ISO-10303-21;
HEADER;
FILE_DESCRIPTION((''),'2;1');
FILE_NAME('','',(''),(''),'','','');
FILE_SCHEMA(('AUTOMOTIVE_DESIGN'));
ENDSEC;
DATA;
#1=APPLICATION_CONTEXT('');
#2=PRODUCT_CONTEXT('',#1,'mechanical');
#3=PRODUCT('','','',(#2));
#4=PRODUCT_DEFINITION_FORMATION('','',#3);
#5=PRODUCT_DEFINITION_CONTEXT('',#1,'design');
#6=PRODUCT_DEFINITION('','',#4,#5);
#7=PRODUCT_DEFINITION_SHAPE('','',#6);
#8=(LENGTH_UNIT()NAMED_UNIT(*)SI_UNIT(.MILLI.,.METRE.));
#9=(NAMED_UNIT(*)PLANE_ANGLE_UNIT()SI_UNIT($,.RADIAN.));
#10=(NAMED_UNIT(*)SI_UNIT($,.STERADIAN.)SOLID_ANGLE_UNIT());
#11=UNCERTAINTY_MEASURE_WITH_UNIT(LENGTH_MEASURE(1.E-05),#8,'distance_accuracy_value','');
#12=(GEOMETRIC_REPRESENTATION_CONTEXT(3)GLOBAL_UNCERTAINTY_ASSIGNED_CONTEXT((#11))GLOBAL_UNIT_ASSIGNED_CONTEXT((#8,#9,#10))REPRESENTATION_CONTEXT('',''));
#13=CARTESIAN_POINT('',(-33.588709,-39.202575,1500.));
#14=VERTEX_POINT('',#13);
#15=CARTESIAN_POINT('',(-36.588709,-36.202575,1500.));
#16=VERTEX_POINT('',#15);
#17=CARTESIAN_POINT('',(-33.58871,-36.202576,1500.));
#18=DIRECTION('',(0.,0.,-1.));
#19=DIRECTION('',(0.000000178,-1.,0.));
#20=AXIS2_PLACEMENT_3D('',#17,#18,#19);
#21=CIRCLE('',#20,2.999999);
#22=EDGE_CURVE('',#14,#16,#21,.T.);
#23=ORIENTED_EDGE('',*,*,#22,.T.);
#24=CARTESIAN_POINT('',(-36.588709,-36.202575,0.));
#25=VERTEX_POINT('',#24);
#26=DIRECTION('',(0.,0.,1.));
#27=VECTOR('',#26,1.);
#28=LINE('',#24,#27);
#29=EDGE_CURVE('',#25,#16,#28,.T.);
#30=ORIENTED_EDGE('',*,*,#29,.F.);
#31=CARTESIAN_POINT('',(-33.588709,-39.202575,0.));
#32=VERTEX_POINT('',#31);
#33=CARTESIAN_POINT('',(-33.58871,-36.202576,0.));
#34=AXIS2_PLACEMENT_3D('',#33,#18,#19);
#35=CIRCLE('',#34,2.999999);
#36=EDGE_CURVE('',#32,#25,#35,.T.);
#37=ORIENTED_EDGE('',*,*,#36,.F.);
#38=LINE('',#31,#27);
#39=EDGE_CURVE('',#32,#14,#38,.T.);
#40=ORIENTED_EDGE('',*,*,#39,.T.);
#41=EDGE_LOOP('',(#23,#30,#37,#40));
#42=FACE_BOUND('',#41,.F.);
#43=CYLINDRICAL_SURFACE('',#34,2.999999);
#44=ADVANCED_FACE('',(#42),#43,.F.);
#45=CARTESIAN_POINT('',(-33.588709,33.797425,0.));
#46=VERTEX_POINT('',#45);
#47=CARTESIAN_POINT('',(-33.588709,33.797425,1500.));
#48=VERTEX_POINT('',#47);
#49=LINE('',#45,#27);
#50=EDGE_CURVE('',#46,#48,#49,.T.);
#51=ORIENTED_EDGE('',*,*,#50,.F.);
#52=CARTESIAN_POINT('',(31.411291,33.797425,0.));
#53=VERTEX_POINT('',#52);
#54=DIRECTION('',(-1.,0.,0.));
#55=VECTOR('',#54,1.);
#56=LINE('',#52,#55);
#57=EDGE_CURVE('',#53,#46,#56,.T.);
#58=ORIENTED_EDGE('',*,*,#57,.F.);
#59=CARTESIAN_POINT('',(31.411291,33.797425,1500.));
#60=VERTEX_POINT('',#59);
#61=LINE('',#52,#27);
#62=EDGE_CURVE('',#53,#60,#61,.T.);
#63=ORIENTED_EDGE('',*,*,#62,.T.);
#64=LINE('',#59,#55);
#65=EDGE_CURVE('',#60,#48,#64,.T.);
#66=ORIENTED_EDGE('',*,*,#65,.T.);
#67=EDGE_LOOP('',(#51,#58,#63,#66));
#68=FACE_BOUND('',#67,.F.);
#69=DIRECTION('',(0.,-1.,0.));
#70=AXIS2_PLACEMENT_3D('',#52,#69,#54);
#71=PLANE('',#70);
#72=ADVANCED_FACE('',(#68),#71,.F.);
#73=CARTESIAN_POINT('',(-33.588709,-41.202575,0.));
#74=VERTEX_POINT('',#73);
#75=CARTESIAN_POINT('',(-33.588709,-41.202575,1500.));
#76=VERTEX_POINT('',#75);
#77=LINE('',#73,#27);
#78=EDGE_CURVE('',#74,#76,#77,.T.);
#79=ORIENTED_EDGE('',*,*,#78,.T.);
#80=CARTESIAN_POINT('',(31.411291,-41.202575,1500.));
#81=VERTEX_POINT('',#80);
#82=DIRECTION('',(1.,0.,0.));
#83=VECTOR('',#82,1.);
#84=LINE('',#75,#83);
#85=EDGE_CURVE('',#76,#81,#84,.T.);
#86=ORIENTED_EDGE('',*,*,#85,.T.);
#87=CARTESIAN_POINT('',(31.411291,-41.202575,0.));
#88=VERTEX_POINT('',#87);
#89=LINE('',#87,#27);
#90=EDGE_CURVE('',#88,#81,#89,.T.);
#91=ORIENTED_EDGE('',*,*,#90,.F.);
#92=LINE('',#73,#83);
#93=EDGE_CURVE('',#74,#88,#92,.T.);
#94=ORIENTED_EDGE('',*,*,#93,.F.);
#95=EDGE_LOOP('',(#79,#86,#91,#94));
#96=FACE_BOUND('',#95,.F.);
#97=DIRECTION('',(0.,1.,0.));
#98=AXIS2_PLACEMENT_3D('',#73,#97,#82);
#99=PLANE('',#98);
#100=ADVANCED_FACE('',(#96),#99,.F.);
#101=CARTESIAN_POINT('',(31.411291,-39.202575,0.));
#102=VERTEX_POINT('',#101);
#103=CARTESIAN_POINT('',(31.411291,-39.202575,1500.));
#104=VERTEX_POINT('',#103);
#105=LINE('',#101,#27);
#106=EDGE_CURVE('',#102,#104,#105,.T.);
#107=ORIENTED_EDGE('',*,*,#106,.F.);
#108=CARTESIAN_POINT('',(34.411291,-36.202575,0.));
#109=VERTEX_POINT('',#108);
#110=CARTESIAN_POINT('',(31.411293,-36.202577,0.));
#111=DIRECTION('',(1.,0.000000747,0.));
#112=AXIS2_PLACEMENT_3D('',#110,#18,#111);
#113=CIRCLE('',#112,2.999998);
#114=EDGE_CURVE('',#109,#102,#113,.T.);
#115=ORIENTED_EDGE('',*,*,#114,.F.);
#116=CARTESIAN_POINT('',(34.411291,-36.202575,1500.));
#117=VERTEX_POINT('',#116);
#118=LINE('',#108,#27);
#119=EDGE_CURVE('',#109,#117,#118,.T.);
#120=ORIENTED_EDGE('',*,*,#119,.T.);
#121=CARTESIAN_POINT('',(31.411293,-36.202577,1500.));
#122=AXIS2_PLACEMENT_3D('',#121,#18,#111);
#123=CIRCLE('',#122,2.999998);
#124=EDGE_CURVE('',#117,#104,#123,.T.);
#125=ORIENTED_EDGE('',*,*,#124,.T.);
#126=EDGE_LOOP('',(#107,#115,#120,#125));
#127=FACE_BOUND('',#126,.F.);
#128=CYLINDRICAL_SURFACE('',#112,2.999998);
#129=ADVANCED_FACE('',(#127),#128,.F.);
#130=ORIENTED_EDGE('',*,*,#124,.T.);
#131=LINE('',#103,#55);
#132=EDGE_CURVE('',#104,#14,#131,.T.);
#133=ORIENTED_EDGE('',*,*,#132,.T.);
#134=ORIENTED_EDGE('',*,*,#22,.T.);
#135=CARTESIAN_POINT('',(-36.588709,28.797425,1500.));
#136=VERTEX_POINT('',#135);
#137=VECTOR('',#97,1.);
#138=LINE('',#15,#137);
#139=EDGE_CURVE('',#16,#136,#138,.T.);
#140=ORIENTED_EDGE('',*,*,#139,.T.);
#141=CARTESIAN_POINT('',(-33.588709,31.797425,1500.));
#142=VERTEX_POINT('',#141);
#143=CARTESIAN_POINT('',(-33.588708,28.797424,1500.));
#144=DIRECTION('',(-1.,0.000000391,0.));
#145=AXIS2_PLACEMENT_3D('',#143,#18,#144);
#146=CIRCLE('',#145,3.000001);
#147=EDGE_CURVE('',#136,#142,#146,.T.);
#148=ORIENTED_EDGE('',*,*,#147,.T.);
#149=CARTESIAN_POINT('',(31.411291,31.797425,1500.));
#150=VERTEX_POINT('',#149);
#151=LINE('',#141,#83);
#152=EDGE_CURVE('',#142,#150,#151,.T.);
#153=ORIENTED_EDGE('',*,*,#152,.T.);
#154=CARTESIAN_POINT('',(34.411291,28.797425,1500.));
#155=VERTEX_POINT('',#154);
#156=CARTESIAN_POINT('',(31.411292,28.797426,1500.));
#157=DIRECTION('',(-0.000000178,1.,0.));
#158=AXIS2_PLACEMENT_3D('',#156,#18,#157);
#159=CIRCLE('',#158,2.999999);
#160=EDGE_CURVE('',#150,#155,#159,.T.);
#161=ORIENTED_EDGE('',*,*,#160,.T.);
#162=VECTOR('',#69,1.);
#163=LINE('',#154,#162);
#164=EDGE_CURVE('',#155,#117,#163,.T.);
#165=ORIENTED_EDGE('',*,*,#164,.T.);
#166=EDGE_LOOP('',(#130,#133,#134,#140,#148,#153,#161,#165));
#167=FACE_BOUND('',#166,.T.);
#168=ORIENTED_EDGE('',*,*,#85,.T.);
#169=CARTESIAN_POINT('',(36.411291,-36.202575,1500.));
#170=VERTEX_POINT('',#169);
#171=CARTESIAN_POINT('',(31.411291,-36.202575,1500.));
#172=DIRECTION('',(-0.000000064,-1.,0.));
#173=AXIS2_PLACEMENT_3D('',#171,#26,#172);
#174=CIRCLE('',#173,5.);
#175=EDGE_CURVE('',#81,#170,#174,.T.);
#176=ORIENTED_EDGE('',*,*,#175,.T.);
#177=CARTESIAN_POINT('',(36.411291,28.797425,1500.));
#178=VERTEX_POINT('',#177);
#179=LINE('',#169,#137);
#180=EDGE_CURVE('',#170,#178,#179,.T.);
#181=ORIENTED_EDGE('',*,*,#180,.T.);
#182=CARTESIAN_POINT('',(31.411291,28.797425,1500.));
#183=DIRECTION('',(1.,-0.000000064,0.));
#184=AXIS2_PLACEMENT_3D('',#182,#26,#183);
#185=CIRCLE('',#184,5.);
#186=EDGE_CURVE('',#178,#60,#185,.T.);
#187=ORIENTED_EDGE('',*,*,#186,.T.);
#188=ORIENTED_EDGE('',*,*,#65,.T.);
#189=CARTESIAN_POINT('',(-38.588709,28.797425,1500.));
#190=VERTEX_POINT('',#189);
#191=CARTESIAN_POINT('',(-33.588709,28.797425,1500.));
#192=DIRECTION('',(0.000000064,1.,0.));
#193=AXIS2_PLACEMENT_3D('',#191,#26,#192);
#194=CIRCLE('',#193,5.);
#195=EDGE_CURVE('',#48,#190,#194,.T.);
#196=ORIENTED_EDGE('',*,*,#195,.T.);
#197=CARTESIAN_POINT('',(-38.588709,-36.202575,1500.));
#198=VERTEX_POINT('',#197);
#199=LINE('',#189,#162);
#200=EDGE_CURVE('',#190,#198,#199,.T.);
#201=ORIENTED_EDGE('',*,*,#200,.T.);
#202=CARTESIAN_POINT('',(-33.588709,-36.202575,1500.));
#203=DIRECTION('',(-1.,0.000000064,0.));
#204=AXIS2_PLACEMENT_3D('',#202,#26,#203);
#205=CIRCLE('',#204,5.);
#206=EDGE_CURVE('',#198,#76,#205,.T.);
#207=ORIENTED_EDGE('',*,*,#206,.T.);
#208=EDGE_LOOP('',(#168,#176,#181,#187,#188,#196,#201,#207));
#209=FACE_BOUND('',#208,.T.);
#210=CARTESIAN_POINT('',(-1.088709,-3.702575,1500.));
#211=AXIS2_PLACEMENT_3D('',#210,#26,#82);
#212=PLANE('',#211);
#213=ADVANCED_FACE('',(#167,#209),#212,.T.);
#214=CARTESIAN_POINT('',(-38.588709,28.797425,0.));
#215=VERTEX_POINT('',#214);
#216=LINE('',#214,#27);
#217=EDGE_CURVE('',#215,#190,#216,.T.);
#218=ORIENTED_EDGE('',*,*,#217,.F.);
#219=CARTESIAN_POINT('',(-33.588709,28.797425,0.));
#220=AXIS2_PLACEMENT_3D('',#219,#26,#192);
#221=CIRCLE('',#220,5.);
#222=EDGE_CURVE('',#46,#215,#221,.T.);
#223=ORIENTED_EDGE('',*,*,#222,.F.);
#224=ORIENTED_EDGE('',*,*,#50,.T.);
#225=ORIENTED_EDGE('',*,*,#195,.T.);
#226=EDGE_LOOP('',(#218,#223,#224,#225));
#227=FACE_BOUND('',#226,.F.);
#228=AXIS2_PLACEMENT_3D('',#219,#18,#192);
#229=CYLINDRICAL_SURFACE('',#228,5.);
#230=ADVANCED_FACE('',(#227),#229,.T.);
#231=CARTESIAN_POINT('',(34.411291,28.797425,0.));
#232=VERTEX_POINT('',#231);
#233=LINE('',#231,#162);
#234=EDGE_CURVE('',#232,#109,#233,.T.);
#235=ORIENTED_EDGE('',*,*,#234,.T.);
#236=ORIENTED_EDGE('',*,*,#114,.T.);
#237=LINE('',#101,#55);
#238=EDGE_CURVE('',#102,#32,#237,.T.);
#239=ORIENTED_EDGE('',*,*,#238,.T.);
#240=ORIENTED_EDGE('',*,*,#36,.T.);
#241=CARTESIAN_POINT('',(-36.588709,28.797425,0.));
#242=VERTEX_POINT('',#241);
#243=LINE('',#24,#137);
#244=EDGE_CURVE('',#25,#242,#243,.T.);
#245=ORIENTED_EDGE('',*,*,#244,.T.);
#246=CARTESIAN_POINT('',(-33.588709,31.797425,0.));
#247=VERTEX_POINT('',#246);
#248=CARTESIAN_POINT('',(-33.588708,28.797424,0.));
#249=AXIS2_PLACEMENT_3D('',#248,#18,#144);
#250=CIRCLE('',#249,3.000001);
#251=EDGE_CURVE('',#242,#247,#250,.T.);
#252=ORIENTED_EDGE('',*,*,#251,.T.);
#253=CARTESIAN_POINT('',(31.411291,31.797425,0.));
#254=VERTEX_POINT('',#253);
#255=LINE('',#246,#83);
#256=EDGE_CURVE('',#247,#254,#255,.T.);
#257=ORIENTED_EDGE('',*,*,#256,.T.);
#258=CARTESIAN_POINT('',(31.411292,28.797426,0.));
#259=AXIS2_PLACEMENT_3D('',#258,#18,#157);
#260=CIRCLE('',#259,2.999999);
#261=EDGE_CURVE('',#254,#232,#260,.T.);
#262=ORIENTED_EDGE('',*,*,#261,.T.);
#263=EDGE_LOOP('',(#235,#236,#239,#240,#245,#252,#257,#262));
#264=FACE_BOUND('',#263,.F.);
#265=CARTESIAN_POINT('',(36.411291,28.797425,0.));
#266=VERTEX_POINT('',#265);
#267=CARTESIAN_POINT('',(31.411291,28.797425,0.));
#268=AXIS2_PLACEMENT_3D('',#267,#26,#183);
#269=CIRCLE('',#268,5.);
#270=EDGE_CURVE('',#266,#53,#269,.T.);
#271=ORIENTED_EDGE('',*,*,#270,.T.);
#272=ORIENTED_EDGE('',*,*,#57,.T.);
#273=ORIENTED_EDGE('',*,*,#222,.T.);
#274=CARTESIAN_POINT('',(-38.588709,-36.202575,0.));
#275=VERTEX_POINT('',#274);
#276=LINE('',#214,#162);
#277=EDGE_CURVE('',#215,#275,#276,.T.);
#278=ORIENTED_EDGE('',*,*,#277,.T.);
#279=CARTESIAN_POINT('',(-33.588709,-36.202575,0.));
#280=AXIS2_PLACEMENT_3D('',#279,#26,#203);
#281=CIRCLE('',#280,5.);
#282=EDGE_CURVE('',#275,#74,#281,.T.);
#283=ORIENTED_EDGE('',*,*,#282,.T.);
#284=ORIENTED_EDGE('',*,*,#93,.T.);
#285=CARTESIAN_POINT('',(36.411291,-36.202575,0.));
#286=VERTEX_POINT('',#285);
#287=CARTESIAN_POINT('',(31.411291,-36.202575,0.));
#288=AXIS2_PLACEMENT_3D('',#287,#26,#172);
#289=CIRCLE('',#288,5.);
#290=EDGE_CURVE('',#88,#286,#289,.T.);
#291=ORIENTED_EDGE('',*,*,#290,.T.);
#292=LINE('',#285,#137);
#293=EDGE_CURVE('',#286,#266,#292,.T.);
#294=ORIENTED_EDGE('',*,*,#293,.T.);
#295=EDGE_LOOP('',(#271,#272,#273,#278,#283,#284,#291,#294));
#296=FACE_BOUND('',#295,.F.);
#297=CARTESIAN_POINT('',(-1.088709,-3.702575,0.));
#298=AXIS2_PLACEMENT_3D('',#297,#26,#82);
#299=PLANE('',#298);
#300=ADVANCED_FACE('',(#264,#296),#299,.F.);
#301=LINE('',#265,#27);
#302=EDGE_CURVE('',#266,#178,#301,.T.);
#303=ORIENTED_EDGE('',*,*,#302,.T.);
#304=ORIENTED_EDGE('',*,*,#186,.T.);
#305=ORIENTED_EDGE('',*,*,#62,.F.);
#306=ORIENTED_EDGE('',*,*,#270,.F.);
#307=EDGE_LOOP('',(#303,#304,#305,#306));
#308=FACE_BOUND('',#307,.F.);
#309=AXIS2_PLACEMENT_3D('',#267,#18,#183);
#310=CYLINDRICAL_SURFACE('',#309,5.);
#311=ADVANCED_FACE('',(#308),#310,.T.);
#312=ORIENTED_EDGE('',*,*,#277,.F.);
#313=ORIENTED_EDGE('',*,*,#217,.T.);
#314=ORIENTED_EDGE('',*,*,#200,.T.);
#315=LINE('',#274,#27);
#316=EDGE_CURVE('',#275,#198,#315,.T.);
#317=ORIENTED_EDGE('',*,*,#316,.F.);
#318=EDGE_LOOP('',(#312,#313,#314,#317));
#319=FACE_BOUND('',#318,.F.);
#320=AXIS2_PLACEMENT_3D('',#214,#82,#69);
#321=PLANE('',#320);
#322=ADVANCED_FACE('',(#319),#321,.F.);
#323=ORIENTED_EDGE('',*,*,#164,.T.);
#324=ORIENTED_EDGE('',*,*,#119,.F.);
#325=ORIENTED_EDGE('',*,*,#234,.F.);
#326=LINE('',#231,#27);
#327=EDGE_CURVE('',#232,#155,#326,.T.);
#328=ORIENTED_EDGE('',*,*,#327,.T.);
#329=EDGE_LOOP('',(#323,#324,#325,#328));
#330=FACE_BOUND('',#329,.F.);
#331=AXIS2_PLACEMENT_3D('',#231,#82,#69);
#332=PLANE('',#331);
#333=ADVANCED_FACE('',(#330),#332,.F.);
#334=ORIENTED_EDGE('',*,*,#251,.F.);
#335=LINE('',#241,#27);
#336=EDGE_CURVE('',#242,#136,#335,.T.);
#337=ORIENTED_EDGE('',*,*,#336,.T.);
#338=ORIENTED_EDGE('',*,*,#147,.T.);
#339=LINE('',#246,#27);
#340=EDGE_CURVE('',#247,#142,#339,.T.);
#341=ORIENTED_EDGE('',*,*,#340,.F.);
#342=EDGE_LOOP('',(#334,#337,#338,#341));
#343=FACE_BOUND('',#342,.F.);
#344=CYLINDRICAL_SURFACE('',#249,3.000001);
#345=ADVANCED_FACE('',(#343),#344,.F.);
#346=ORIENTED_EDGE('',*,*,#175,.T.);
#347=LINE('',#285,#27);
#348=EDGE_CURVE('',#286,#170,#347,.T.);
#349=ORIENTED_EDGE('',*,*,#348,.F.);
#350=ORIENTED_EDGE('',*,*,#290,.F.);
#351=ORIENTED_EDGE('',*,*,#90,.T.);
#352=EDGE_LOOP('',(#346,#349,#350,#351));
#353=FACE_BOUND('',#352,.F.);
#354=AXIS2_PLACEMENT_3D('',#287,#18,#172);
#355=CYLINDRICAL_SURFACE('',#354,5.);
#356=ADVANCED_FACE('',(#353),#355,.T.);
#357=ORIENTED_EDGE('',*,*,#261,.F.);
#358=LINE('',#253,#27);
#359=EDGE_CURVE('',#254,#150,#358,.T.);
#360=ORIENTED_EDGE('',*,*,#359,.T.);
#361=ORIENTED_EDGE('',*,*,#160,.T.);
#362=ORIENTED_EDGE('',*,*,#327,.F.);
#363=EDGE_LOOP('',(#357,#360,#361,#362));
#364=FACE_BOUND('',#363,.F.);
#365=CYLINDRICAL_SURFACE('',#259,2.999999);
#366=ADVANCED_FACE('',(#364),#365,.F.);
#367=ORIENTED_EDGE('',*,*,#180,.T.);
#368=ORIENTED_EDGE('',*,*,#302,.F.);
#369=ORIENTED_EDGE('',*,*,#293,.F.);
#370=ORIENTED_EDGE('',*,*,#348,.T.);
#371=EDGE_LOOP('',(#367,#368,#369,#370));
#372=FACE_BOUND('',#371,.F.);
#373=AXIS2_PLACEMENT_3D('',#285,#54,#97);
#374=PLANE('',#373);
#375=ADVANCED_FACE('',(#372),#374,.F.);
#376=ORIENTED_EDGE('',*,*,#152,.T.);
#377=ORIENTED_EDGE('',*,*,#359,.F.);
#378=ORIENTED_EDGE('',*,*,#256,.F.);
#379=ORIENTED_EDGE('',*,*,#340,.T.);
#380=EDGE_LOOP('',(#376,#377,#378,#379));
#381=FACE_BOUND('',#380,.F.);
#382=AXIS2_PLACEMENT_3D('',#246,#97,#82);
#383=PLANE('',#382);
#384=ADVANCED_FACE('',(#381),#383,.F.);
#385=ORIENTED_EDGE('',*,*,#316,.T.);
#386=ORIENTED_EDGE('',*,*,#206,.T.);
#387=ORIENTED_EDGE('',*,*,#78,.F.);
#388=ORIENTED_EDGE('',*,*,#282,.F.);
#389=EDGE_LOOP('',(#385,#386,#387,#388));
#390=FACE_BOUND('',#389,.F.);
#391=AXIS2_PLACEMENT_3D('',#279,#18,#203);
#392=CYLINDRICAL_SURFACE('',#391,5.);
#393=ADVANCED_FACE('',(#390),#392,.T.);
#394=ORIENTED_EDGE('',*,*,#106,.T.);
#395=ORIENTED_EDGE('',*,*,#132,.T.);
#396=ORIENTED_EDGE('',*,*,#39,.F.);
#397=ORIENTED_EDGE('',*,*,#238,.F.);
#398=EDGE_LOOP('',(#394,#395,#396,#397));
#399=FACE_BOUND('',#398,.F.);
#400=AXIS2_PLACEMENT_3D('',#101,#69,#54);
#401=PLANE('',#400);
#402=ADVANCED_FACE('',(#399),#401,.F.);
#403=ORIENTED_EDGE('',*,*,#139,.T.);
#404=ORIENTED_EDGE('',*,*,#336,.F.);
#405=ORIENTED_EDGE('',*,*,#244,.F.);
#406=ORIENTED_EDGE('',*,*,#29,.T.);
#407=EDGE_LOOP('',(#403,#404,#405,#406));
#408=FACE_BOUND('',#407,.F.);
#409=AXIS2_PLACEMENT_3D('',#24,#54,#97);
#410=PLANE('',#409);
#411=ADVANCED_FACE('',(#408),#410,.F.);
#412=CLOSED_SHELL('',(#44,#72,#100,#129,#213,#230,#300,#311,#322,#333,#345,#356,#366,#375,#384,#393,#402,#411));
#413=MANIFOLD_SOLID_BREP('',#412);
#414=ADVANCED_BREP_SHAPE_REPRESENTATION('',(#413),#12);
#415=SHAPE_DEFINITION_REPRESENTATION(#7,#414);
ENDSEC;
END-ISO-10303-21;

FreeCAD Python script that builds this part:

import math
import FreeCAD as App
import Part
import Sketcher
from FreeCAD import Vector

doc = App.newDocument("Part")
body = doc.addObject("PartDesign::Body", "Body")

# Sketch on XY plane
sketch1 = body.newObject("Sketcher::SketchObject", "Sketch")
sketch1.AttachmentSupport = (doc.getObject("XY_Plane"), [""])
sketch1.MapMode = "FlatFace"
sketch1.addGeometry([
    Part.LineSegment(Vector(31.4, 33.8, 0), Vector(-33.6, 33.8, 0)),  # 0
    Part.ArcOfCircle(Part.Circle(Vector(-33.6, 28.8, 0), Vector(0, 0, 1), 5), math.radians(90), math.radians(180)),  # 1
    Part.LineSegment(Vector(-38.6, 28.8, 0), Vector(-38.6, -36.2, 0)),  # 2
    Part.ArcOfCircle(Part.Circle(Vector(-33.6, -36.2, 0), Vector(0, 0, 1), 5), math.radians(180), math.radians(270)),  # 3
    Part.LineSegment(Vector(-33.6, -41.2, 0), Vector(31.4, -41.2, 0)),  # 4
    Part.ArcOfCircle(Part.Circle(Vector(31.4, -36.2, 0), Vector(0, 0, 1), 5), math.radians(-90), math.radians(0)),  # 5
    Part.LineSegment(Vector(36.4, -36.2, 0), Vector(36.4, 28.8, 0)),  # 6
    Part.ArcOfCircle(Part.Circle(Vector(31.4, 28.8, 0), Vector(0, 0, 1), 5), math.radians(0), math.radians(90)),  # 7
    Part.ArcOfCircle(Part.Circle(Vector(31.4, -36.2, 0), Vector(0, 0, 1), 3), math.radians(-90), math.radians(0)),  # 8
    Part.LineSegment(Vector(31.4, -39.2, 0), Vector(-33.6, -39.2, 0)),  # 9
    Part.ArcOfCircle(Part.Circle(Vector(-33.6, -36.2, 0), Vector(0, 0, 1), 3), math.radians(180), math.radians(270)),  # 10
    Part.LineSegment(Vector(-36.6, -36.2, 0), Vector(-36.6, 28.8, 0)),  # 11
    Part.ArcOfCircle(Part.Circle(Vector(-33.6, 28.8, 0), Vector(0, 0, 1), 3), math.radians(90), math.radians(180)),  # 12
    Part.LineSegment(Vector(-33.6, 31.8, 0), Vector(31.4, 31.8, 0)),  # 13
    Part.ArcOfCircle(Part.Circle(Vector(31.4, 28.8, 0), Vector(0, 0, 1), 3), math.radians(0), math.radians(90)),  # 14
    Part.LineSegment(Vector(34.4, 28.8, 0), Vector(34.4, -36.2, 0)),  # 15
], False)
sketch1.addConstraint([
    Sketcher.Constraint("Tangent", 0, 2, 1, 1),
    Sketcher.Constraint("Tangent", 1, 2, 2, 1),
    Sketcher.Constraint("Tangent", 2, 2, 3, 1),
    Sketcher.Constraint("Tangent", 3, 2, 4, 1),
    Sketcher.Constraint("Tangent", 4, 2, 5, 1),
    Sketcher.Constraint("Tangent", 5, 2, 6, 1),
    Sketcher.Constraint("Tangent", 6, 2, 7, 1),
    Sketcher.Constraint("Tangent", 7, 2, 0, 1),
    Sketcher.Constraint("Tangent", 8, 1, 9, 1),
    Sketcher.Constraint("Tangent", 9, 2, 10, 2),
    Sketcher.Constraint("Tangent", 10, 1, 11, 1),
    Sketcher.Constraint("Tangent", 11, 2, 12, 2),
    Sketcher.Constraint("Tangent", 12, 1, 13, 1),
    Sketcher.Constraint("Tangent", 13, 2, 14, 2),
    Sketcher.Constraint("Tangent", 14, 1, 15, 1),
    Sketcher.Constraint("Tangent", 15, 2, 8, 2),
    Sketcher.Constraint("Horizontal", 0),
    Sketcher.Constraint("Vertical", 2),
    Sketcher.Constraint("Horizontal", 4),
    Sketcher.Constraint("Vertical", 6),
    Sketcher.Constraint("Horizontal", 9),
    Sketcher.Constraint("Vertical", 11),
    Sketcher.Constraint("Horizontal", 13),
    Sketcher.Constraint("Vertical", 15),
    Sketcher.Constraint("Coincident", 8, 3, 5, 3),
    Sketcher.Constraint("Coincident", 10, 3, 3, 3),
    Sketcher.Constraint("Coincident", 12, 3, 1, 3),
    Sketcher.Constraint("Equal", 1, 3),
    Sketcher.Constraint("Equal", 3, 5),
    Sketcher.Constraint("Equal", 5, 7),
    Sketcher.Constraint("Equal", 12, 14),
    Sketcher.Constraint("Equal", 13, 2),
    Sketcher.Constraint("Radius", 1, 5.0),
    Sketcher.Constraint("Radius", 10, 2.999999),
    Sketcher.Constraint("DistanceX", 0, 2, 0, 1, 65.0),
    Sketcher.Constraint("DistanceX", 1, 3, -1, 1, 33.588709),
    Sketcher.Constraint("DistanceY", -1, 1, 1, 3, 28.797425),
])
pad1 = body.newObject("PartDesign::Pad", "Pad")
pad1.Profile = sketch1
pad1.Length = 1500

doc.recompute()
